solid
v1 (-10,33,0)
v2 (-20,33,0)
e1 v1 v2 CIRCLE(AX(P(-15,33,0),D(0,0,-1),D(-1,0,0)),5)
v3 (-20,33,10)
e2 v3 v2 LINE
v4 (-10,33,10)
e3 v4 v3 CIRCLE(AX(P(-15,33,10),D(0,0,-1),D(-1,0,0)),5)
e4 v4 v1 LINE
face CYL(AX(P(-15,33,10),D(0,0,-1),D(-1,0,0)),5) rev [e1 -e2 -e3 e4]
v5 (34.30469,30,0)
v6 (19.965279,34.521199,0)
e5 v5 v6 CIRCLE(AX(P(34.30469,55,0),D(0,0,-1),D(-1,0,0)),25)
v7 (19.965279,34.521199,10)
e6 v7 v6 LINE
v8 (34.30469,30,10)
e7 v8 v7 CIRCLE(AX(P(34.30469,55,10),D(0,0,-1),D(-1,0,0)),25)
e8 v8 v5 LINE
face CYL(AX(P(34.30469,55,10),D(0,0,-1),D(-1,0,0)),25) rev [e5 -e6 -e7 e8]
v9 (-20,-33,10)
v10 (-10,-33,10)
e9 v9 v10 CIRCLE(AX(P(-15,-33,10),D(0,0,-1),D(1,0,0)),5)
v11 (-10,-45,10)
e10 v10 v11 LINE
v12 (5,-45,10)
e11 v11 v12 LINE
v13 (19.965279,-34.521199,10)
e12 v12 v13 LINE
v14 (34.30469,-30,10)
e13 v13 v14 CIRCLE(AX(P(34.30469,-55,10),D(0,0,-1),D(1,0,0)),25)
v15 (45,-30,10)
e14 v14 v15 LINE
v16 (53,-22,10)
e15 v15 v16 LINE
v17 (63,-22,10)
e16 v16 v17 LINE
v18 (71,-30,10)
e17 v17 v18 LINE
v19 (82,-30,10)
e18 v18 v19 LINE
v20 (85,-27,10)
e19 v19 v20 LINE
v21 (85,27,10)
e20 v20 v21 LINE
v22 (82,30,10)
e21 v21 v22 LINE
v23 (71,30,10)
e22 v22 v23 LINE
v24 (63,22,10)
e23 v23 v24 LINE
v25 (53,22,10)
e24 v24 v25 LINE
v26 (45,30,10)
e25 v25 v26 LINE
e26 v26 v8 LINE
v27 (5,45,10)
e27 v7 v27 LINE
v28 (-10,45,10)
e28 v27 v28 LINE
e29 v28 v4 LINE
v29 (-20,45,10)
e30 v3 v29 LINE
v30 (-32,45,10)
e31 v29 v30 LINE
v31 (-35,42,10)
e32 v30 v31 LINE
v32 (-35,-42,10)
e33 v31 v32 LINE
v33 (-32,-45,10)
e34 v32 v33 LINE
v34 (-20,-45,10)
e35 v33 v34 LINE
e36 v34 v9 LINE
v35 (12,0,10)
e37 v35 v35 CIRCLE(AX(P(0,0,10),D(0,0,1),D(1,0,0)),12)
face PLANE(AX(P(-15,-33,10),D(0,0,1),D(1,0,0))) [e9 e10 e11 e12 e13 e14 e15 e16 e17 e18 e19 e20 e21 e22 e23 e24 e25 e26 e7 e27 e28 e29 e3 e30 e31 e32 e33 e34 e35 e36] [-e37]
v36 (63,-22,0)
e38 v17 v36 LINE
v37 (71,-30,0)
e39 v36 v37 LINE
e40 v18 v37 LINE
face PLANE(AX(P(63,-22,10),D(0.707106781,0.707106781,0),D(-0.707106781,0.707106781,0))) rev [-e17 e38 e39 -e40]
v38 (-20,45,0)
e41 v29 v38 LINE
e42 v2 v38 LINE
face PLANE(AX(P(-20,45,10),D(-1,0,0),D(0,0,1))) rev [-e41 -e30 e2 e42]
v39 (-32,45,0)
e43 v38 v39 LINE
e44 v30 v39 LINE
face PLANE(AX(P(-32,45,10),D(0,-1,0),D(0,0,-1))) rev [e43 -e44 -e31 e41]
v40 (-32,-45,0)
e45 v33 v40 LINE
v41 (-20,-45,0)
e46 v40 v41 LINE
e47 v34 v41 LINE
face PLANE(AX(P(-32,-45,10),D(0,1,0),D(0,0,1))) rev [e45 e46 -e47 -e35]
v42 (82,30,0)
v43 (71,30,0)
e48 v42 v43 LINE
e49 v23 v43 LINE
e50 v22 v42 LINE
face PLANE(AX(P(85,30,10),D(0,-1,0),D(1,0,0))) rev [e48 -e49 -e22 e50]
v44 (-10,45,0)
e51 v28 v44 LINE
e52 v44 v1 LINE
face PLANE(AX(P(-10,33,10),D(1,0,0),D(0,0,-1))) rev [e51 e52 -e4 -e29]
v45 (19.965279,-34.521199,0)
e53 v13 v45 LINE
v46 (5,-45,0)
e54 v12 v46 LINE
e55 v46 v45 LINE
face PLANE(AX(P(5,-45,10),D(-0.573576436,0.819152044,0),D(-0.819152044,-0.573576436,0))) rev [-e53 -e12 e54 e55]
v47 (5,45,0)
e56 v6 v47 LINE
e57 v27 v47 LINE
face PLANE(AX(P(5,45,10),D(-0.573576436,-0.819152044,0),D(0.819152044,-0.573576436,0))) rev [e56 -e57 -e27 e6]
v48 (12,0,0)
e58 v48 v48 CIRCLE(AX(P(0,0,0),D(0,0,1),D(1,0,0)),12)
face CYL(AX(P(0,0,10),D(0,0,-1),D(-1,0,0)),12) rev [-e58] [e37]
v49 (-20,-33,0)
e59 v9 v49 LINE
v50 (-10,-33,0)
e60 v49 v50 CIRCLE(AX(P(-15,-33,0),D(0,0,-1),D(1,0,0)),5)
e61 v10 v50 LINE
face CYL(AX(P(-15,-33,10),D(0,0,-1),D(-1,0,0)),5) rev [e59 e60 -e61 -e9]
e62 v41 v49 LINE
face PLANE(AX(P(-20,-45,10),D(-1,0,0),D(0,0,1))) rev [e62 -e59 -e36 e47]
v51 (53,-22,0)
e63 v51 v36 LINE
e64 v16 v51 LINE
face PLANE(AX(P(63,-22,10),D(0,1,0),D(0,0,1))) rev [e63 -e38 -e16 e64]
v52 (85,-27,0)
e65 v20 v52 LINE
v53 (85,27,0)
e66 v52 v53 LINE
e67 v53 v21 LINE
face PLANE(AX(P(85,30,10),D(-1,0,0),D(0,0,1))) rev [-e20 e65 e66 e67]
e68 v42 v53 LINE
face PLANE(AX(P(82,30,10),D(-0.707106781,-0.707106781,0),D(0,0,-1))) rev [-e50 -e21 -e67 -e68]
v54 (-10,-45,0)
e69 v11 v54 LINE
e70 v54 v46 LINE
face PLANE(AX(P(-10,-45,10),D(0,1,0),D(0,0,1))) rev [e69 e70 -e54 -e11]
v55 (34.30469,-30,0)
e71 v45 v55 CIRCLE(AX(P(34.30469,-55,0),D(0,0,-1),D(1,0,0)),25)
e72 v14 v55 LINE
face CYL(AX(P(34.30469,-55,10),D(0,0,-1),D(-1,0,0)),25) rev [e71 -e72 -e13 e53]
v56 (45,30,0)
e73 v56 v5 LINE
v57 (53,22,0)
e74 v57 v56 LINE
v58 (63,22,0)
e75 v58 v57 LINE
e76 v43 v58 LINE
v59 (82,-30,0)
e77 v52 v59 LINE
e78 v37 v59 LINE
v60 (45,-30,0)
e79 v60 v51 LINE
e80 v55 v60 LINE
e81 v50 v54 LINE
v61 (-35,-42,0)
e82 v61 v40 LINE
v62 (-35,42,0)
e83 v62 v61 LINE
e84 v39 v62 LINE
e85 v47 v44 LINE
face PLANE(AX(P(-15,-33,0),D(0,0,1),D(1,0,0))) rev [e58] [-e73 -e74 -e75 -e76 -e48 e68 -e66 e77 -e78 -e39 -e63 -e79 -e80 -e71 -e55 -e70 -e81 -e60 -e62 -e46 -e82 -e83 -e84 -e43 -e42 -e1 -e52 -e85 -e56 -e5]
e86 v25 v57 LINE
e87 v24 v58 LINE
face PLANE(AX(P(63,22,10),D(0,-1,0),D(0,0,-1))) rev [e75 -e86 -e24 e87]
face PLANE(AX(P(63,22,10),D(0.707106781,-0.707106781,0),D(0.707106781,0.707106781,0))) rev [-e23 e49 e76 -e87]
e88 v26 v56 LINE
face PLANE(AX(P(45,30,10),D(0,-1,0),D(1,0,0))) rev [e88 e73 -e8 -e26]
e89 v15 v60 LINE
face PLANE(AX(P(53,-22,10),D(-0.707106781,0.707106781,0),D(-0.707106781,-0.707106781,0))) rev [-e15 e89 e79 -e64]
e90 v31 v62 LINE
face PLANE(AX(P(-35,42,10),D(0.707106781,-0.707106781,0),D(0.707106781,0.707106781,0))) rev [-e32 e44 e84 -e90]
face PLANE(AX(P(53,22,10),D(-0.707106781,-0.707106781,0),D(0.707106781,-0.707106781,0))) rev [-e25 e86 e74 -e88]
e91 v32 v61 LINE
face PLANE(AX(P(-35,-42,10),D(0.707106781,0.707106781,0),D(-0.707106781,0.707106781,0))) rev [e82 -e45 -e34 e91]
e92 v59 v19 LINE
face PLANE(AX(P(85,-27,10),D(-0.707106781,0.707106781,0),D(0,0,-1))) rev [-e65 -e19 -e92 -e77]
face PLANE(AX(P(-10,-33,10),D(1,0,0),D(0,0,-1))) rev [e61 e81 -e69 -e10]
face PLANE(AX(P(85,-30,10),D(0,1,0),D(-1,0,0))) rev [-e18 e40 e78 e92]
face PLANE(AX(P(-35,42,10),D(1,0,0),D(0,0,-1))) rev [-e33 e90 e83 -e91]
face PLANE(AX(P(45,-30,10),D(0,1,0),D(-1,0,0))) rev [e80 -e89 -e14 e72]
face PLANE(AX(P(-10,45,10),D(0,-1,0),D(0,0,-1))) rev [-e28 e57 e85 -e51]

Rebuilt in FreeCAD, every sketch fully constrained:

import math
import FreeCAD as App
import Part
import Sketcher

V = App.Vector
Q = App.Units.Quantity


def edges_at(feature, points):
    """Names of the edges that pass closest to the given points."""
    edges = feature.Shape.Edges
    near = lambda p: min(range(len(edges)), key=lambda i: edges[i].distToShape(Part.Vertex(*p))[0])
    return sorted({f"Edge{near(p) + 1}" for p in points})

doc = App.newDocument("Part")
body = doc.addObject("PartDesign::Body", "Body")

# Sketch on XY plane
sketch1 = body.newObject("Sketcher::SketchObject", "Sketch")
sketch1.AttachmentSupport = (doc.getObject("XY_Plane"), [""])
sketch1.MapMode = "FlatFace"
sketch1.addGeometry(Part.LineSegment(V(-35, 42, 0), V(-35, -42, 0)), False)
sketch1.addGeometry(Part.LineSegment(V(-35, -42, 0), V(-32, -45, 0)), False)
sketch1.addGeometry(Part.LineSegment(V(-32, -45, 0), V(-20, -45, 0)), False)
sketch1.addGeometry(Part.LineSegment(V(-20, -45, 0), V(-20, -33, 0)), False)
sketch1.addGeometry(Part.ArcOfCircle(Part.Circle(V(-15, -33, 0), V(0, 0, 1), 5), math.radians(0), math.radians(180)), False)
sketch1.addGeometry(Part.LineSegment(V(-10, -33, 0), V(-10, -45, 0)), False)
sketch1.addGeometry(Part.LineSegment(V(-10, -45, 0), V(5, -45, 0)), False)
sketch1.addGeometry(Part.LineSegment(V(5, -45, 0), V(20, -34.5, 0)), False)
sketch1.addGeometry(Part.ArcOfCircle(Part.Circle(V(34.3, -55, 0), V(0, 0, 1), 25), math.radians(90), math.radians(125)), False)
sketch1.addGeometry(Part.LineSegment(V(34.3, -30, 0), V(45, -30, 0)), False)
sketch1.addGeometry(Part.LineSegment(V(45, -30, 0), V(53, -22, 0)), False)
sketch1.addGeometry(Part.LineSegment(V(53, -22, 0), V(63, -22, 0)), False)
sketch1.addGeometry(Part.LineSegment(V(63, -22, 0), V(71, -30, 0)), False)
sketch1.addGeometry(Part.LineSegment(V(71, -30, 0), V(85, -30, 0)), False)
sketch1.addGeometry(Part.LineSegment(V(85, -30, 0), V(85, 30, 0)), False)
sketch1.addGeometry(Part.LineSegment(V(85, 30, 0), V(71, 30, 0)), False)
sketch1.addGeometry(Part.LineSegment(V(71, 30, 0), V(63, 22, 0)), False)
sketch1.addGeometry(Part.LineSegment(V(63, 22, 0), V(53, 22, 0)), False)
sketch1.addGeometry(Part.LineSegment(V(53, 22, 0), V(45, 30, 0)), False)
sketch1.addGeometry(Part.LineSegment(V(45, 30, 0), V(34.3, 30, 0)), False)
sketch1.addGeometry(Part.ArcOfCircle(Part.Circle(V(34.3, 55, 0), V(0, 0, 1), 25), math.radians(-125), math.radians(-90)), False)
sketch1.addGeometry(Part.LineSegment(V(20, 34.5, 0), V(5, 45, 0)), False)
sketch1.addGeometry(Part.LineSegment(V(5, 45, 0), V(-10, 45, 0)), False)
sketch1.addGeometry(Part.LineSegment(V(-10, 45, 0), V(-10, 33, 0)), False)
sketch1.addGeometry(Part.ArcOfCircle(Part.Circle(V(-15, 33, 0), V(0, 0, 1), 5), math.radians(180), math.radians(360)), False)
sketch1.addGeometry(Part.LineSegment(V(-20, 33, 0), V(-20, 45, 0)), False)
sketch1.addGeometry(Part.LineSegment(V(-20, 45, 0), V(-32, 45, 0)), False)
sketch1.addGeometry(Part.LineSegment(V(-32, 45, 0), V(-35, 42, 0)), False)
sketch1.addGeometry(Part.Circle(V(0, 0, 0), V(0, 0, 1), 12), False)
sketch1.addConstraint(Sketcher.Constraint("Coincident", 0, 2, 1, 1))
sketch1.addConstraint(Sketcher.Constraint("Coincident", 1, 2, 2, 1))
sketch1.addConstraint(Sketcher.Constraint("Coincident", 2, 2, 3, 1))
sketch1.addConstraint(Sketcher.Constraint("Tangent", 3, 2, 4, 2))
sketch1.addConstraint(Sketcher.Constraint("Tangent", 4, 1, 5, 1))
sketch1.addConstraint(Sketcher.Constraint("Coincident", 5, 2, 6, 1))
sketch1.addConstraint(Sketcher.Constraint("Coincident", 6, 2, 7, 1))
sketch1.addConstraint(Sketcher.Constraint("Tangent", 7, 2, 8, 2))
sketch1.addConstraint(Sketcher.Constraint("Tangent", 8, 1, 9, 1))
sketch1.addConstraint(Sketcher.Constraint("Coincident", 9, 2, 10, 1))
sketch1.addConstraint(Sketcher.Constraint("Coincident", 10, 2, 11, 1))
sketch1.addConstraint(Sketcher.Constraint("Coincident", 11, 2, 12, 1))
sketch1.addConstraint(Sketcher.Constraint("Coincident", 12, 2, 13, 1))
sketch1.addConstraint(Sketcher.Constraint("Coincident", 13, 2, 14, 1))
sketch1.addConstraint(Sketcher.Constraint("Coincident", 14, 2, 15, 1))
sketch1.addConstraint(Sketcher.Constraint("Coincident", 15, 2, 16, 1))
sketch1.addConstraint(Sketcher.Constraint("Coincident", 16, 2, 17, 1))
sketch1.addConstraint(Sketcher.Constraint("Coincident", 17, 2, 18, 1))
sketch1.addConstraint(Sketcher.Constraint("Coincident", 18, 2, 19, 1))
sketch1.addConstraint(Sketcher.Constraint("Tangent", 19, 2, 20, 2))
sketch1.addConstraint(Sketcher.Constraint("Tangent", 20, 1, 21, 1))
sketch1.addConstraint(Sketcher.Constraint("Coincident", 21, 2, 22, 1))
sketch1.addConstraint(Sketcher.Constraint("Coincident", 22, 2, 23, 1))
sketch1.addConstraint(Sketcher.Constraint("Tangent", 23, 2, 24, 2))
sketch1.addConstraint(Sketcher.Constraint("Tangent", 24, 1, 25, 1))
sketch1.addConstraint(Sketcher.Constraint("Coincident", 25, 2, 26, 1))
sketch1.addConstraint(Sketcher.Constraint("Coincident", 26, 2, 27, 1))
sketch1.addConstraint(Sketcher.Constraint("Coincident", 27, 2, 0, 1))
sketch1.addConstraint(Sketcher.Constraint("Vertical", 0))
sketch1.addConstraint(Sketcher.Constraint("Horizontal", 2))
sketch1.addConstraint(Sketcher.Constraint("Vertical", 3))
sketch1.addConstraint(Sketcher.Constraint("Vertical", 5))
sketch1.addConstraint(Sketcher.Constraint("Horizontal", 6))
sketch1.addConstraint(Sketcher.Constraint("Horizontal", 9))
sketch1.addConstraint(Sketcher.Constraint("Horizontal", 11))
sketch1.addConstraint(Sketcher.Constraint("Horizontal", 13))
sketch1.addConstraint(Sketcher.Constraint("Vertical", 14))
sketch1.addConstraint(Sketcher.Constraint("Horizontal", 15))
sketch1.addConstraint(Sketcher.Constraint("Horizontal", 17))
sketch1.addConstraint(Sketcher.Constraint("Horizontal", 19))
sketch1.addConstraint(Sketcher.Constraint("Horizontal", 22))
sketch1.addConstraint(Sketcher.Constraint("Vertical", 23))
sketch1.addConstraint(Sketcher.Constraint("Vertical", 25))
sketch1.addConstraint(Sketcher.Constraint("Horizontal", 26))
sketch1.addConstraint(Sketcher.Constraint("Coincident", 28, 3, -1, 1))
sketch1.addConstraint(Sketcher.Constraint("Equal", 8, 20))
sketch1.addConstraint(Sketcher.Constraint("Equal", 4, 24))
sketch1.addConstraint(Sketcher.Constraint("Symmetric", 8, 3, 20, 3, -1))
sketch1.addConstraint(Sketcher.Constraint("Symmetric", 4, 3, 24, 3, -1))
sketch1.addConstraint(Sketcher.Constraint("Symmetric", 12, 2, 15, 2, -1))
sketch1.addConstraint(Sketcher.Constraint("Symmetric", 11, 2, 16, 2, -1))
sketch1.addConstraint(Sketcher.Constraint("Symmetric", 6, 2, 21, 2, -1))
sketch1.addConstraint(Sketcher.Constraint("Symmetric", 1, 2, 26, 2, -1))
sketch1.addConstraint(Sketcher.Constraint("Perpendicular", 1, 10))
sketch1.addConstraint(Sketcher.Constraint("Perpendicular", 10, 12))
sketch1.addConstraint(Sketcher.Constraint("Perpendicular", 12, 16))
sketch1.addConstraint(Sketcher.Constraint("Perpendicular", 16, 18))
sketch1.addConstraint(Sketcher.Constraint("Perpendicular", 18, 27))
sketch1.addConstraint(Sketcher.Constraint("Horizontal", 2, 2, 5, 2))
sketch1.addConstraint(Sketcher.Constraint("Horizontal", 9, 2, 12, 2))
sketch1.addConstraint(Sketcher.Constraint("Vertical", 10, 2, 17, 2))
sketch1.addConstraint(Sketcher.Constraint("Equal", 26, 3))
sketch1.addConstraint(Sketcher.Constraint("Diameter", 28, 24.0))
sketch1.addConstraint(Sketcher.Constraint("Radius", 4, 5.0))
sketch1.addConstraint(Sketcher.Constraint("Radius", 8, 25.0))
sketch1.addConstraint(Sketcher.Constraint("DistanceX", 2, 1, 2, 2, 12.0))
sketch1.addConstraint(Sketcher.Constraint("DistanceX", 6, 1, 6, 2, 15.0))
sketch1.addConstraint(Sketcher.Constraint("DistanceX", 11, 1, 11, 2, 10.0))
sketch1.addConstraint(Sketcher.Constraint("DistanceX", 13, 1, 13, 2, 14.0))
sketch1.addConstraint(Sketcher.Constraint("DistanceY", 0, 2, 0, 1, 84.0))
sketch1.addConstraint(Sketcher.Constraint("DistanceY", 14, 1, 14, 2, 60.0))
sketch1.addConstraint(Sketcher.Constraint("Angle", 7, Q("35 deg")))
sketch1.addConstraint(Sketcher.Constraint("DistanceX", 4, 3, -1, 1, 15.0))
sketch1.addConstraint(Sketcher.Constraint("DistanceY", 4, 3, -1, 1, 33.0))
sketch1.addConstraint(Sketcher.Constraint("DistanceX", -1, 1, 9, 2, 45.0))
sketch1.addConstraint(Sketcher.Constraint("DistanceX", -1, 1, 10, 2, 53.0))
pad1 = body.newObject("PartDesign::Pad", "Pad")
pad1.Profile = sketch1
pad1.Length = 10
doc.recompute()

chamfer = body.newObject("PartDesign::Chamfer", "Chamfer")
chamfer.Base = (pad1, edges_at(pad1, [(85, 30, 5), (85, -30, 5)]))
chamfer.Size = 3

doc.recompute()
